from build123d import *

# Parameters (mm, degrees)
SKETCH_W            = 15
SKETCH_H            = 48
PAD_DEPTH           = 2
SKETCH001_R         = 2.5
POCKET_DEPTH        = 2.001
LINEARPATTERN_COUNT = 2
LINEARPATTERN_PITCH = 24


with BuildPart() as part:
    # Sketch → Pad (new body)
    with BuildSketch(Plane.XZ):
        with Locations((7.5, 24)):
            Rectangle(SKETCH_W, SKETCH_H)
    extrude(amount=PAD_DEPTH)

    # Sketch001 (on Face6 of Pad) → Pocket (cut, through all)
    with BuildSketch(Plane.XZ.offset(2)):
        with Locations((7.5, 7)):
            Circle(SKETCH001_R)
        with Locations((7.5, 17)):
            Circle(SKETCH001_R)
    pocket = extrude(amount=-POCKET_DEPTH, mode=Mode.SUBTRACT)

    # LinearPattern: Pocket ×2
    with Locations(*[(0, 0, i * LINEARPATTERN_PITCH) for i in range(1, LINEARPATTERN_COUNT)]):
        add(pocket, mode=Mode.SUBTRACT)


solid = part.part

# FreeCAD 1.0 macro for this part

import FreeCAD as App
import Part
import Sketcher
Q = App.Units.Quantity

doc = App.newDocument("Part")
body = doc.addObject("PartDesign::Body", "Body")

sketch1 = body.newObject("Sketcher::SketchObject", "Sketch")
sketch1.AttachmentSupport = (doc.getObject("XZ_Plane"), [""])
sketch1.MapMode = "FlatFace"
sketch1.addGeometry(Part.LineSegment(App.Vector(0, 48, 0), App.Vector(0, 0, 0)), False)
sketch1.addGeometry(Part.LineSegment(App.Vector(0, 0, 0), App.Vector(15, 0, 0)), False)
sketch1.addGeometry(Part.LineSegment(App.Vector(15, 0, 0), App.Vector(15, 48, 0)), False)
sketch1.addGeometry(Part.LineSegment(App.Vector(15, 48, 0), App.Vector(0, 48, 0)), False)
sketch1.addConstraint(Sketcher.Constraint("Coincident", 0, 2, 1, 1))
sketch1.addConstraint(Sketcher.Constraint("Coincident", 1, 2, 2, 1))
sketch1.addConstraint(Sketcher.Constraint("Coincident", 2, 2, 3, 1))
sketch1.addConstraint(Sketcher.Constraint("Coincident", 3, 2, 0, 1))
sketch1.addConstraint(Sketcher.Constraint("Vertical", 0))
sketch1.addConstraint(Sketcher.Constraint("Horizontal", 1))
sketch1.addConstraint(Sketcher.Constraint("Vertical", 2))
sketch1.addConstraint(Sketcher.Constraint("Horizontal", 3))
sketch1.addConstraint(Sketcher.Constraint("Coincident", 0, 2, -1, 1))
sketch1.addConstraint(Sketcher.Constraint("DistanceX", 1, 1, 1, 2, Q("15 mm")))
sketch1.addConstraint(Sketcher.Constraint("DistanceY", 0, 2, 0, 1, Q("48 mm")))
pad1 = body.newObject("PartDesign::Pad", "Pad")
pad1.Profile = sketch1
pad1.Length = 2

sketch2 = body.newObject("Sketcher::SketchObject", "Sketch001")
sketch2.AttachmentSupport = (doc.getObject("XZ_Plane"), [""])
sketch2.MapMode = "FlatFace"
sketch2.AttachmentOffset = App.Placement(App.Vector(0, 0, 2), App.Rotation())
sketch2.addGeometry(Part.Circle(App.Vector(7.5, 7, 0), App.Vector(0, 0, 1), 2.5), False)
sketch2.addGeometry(Part.Circle(App.Vector(7.5, 17, 0), App.Vector(0, 0, 1), 2.5), False)
sketch2.addConstraint(Sketcher.Constraint("Equal", 0, 1))
sketch2.addConstraint(Sketcher.Constraint("Vertical", 0, 3, 1, 3))
sketch2.addConstraint(Sketcher.Constraint("Diameter", 0, Q("5 mm")))
sketch2.addConstraint(Sketcher.Constraint("DistanceY", -1, 1, 0, 3, Q("7 mm")))
sketch2.addConstraint(Sketcher.Constraint("DistanceY", -1, 1, 1, 3, Q("17 mm")))
sketch2.addConstraint(Sketcher.Constraint("DistanceX", -1, 1, 0, 3, Q("7.5 mm")))
pocket1 = body.newObject("PartDesign::Pocket", "Pocket")
pocket1.Profile = sketch2
pocket1.Type = "ThroughAll"
doc.recompute()

linearpattern = body.newObject("PartDesign::LinearPattern", "LinearPattern")
linearpattern.Originals = [pocket1]
linearpattern.Direction = (doc.getObject("Z_Axis"), [""])
linearpattern.Mode = "offset"
linearpattern.Offset = 24
linearpattern.Occurrences = 2
body.Tip = linearpattern

doc.recompute()
